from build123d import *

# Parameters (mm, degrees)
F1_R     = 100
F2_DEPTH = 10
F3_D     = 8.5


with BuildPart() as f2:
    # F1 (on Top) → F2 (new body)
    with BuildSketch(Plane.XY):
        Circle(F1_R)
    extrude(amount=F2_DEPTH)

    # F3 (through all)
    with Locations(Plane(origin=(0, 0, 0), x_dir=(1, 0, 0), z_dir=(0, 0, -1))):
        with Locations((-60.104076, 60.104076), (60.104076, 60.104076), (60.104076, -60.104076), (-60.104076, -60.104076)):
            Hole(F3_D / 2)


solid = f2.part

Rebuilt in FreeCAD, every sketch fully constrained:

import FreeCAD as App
import Part
import Sketcher
from FreeCAD import Vector
Q = App.Units.Quantity

doc = App.newDocument("Part")
body = doc.addObject("PartDesign::Body", "Body")

sketch1 = body.newObject("Sketcher::SketchObject", "Sketch")
sketch1.AttachmentSupport = (doc.getObject("XY_Plane"), [""])
sketch1.MapMode = "FlatFace"
sketch1.addGeometry(Part.Circle(Vector(0, 0, 0), Vector(0, 0, 1), 100), False)
sketch1.addConstraint([
    Sketcher.Constraint("Coincident", 0, 3, -1, 1),
    Sketcher.Constraint("Diameter", 0, Q("200 mm")),
])
pad1 = body.newObject("PartDesign::Pad", "Pad")
pad1.Profile = sketch1
pad1.Length = 10

sketch2 = body.newObject("Sketcher::SketchObject", "Sketch001")
sketch2.AttachmentSupport = (doc.getObject("XY_Plane"), [""])
sketch2.MapMode = "FlatFace"
sketch2.addGeometry([
    Part.Circle(Vector(-60.1, -60.1, 0), Vector(0, 0, 1), 4.2),
    Part.Circle(Vector(60.1, -60.1, 0), Vector(0, 0, 1), 4.2),
    Part.Circle(Vector(60.1, 60.1, 0), Vector(0, 0, 1), 4.2),
    Part.Circle(Vector(-60.1, 60.1, 0), Vector(0, 0, 1), 4.2),
], False)
sketch2.addConstraint([
    Sketcher.Constraint("Equal", 0, 1),
    Sketcher.Constraint("Equal", 1, 2),
    Sketcher.Constraint("Equal", 2, 3),
    Sketcher.Constraint("Symmetric", 0, 3, 2, 3, -1, 1),
    Sketcher.Constraint("Symmetric", 1, 3, 3, 3, -1, 1),
    Sketcher.Constraint("Symmetric", 0, 3, 1, 3, -2),
    Sketcher.Constraint("Diameter", 0, Q("8.5 mm")),
    Sketcher.Constraint("DistanceX", 0, 3, 1, 3, Q("120.208152 mm")),
    Sketcher.Constraint("DistanceY", 1, 3, 2, 3, Q("120.208152 mm")),
])
doc.recompute()
hole = body.newObject("PartDesign::Hole", "Hole")
hole.Profile = sketch2
hole.ThreadType = "None"
hole.Diameter = 8.5
hole.DepthType = "ThroughAll"
hole.Reversed = True

doc.recompute()
